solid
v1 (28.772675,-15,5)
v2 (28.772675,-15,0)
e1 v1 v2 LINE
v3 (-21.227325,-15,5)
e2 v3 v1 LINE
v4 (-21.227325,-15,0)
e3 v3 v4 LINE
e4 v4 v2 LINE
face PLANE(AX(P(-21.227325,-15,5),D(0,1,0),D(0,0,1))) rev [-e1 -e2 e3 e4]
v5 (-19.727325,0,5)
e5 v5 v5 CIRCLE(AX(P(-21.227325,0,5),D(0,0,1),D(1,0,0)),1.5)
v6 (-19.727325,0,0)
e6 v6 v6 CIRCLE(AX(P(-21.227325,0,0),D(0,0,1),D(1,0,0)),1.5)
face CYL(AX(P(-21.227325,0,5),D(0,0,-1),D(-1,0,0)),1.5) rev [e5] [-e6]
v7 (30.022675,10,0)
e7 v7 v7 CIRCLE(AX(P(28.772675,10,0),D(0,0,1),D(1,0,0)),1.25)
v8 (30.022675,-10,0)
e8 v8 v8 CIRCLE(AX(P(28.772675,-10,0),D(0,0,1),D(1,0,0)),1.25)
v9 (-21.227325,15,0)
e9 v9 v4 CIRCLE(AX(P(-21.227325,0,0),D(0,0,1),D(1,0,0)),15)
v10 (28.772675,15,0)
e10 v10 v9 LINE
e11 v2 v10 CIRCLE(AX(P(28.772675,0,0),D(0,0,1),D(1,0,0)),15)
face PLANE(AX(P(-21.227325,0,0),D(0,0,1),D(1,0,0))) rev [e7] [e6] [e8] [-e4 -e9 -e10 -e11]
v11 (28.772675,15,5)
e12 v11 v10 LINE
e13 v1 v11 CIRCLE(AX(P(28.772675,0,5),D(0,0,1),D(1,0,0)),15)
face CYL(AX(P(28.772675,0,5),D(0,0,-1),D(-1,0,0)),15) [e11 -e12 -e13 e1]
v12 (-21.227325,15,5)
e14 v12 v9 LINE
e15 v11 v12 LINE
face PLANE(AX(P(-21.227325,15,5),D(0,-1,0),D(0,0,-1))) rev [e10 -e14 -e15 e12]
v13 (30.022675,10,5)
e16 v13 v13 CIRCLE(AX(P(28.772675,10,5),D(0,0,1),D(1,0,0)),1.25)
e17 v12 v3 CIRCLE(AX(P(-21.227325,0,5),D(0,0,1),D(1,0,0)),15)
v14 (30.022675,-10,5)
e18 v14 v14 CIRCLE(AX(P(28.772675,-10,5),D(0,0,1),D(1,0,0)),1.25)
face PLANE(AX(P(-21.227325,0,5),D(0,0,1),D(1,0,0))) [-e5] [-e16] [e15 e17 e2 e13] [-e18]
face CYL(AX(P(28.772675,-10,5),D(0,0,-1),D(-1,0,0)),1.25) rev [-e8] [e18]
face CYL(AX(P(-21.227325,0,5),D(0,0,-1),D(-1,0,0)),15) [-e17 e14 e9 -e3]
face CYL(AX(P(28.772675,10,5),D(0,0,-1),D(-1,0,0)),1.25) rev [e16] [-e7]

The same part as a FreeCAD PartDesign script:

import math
import FreeCAD as App
import Part
import Sketcher
from FreeCAD import Vector

doc = App.newDocument("Part")
body = doc.addObject("PartDesign::Body", "Body")

# Sketch on XY plane
sketch1 = body.newObject("Sketcher::SketchObject", "Sketch")
sketch1.AttachmentSupport = (doc.getObject("XY_Plane"), [""])
sketch1.MapMode = "FlatFace"
sketch1.addGeometry([
    Part.LineSegment(Vector(28.8, 15, 0), Vector(-21.2, 15, 0)),  # 0
    Part.ArcOfCircle(Part.Circle(Vector(-21.2, 0, 0), Vector(0, 0, 1), 15), math.radians(90), math.radians(270)),  # 1
    Part.LineSegment(Vector(-21.2, -15, 0), Vector(28.8, -15, 0)),  # 2
    Part.ArcOfCircle(Part.Circle(Vector(28.8, 0, 0), Vector(0, 0, 1), 15), math.radians(-90), math.radians(90)),  # 3
    Part.Circle(Vector(28.8, -10, 0), Vector(0, 0, 1), 1.2),  # 4
    Part.Circle(Vector(28.8, 10, 0), Vector(0, 0, 1), 1.2),  # 5
    Part.Circle(Vector(-21.2, 0, 0), Vector(0, 0, 1), 1.5),  # 6
], False)
sketch1.addConstraint([
    Sketcher.Constraint("Tangent", 0, 2, 1, 1),
    Sketcher.Constraint("Tangent", 1, 2, 2, 1),
    Sketcher.Constraint("Tangent", 2, 2, 3, 1),
    Sketcher.Constraint("Tangent", 3, 2, 0, 1),
    Sketcher.Constraint("Horizontal", 0),
    Sketcher.Constraint("Horizontal", 2),
    Sketcher.Constraint("Coincident", 6, 3, 1, 3),
    Sketcher.Constraint("Equal", 4, 5),
    Sketcher.Constraint("Symmetric", 4, 3, 5, 3, -1),
    Sketcher.Constraint("PointOnObject", 1, 3, -1),
    Sketcher.Constraint("Vertical", 3, 3, 4, 3),
    Sketcher.Constraint("Diameter", 6, 3.0),
    Sketcher.Constraint("Radius", 1, 15.0),
    Sketcher.Constraint("Diameter", 4, 2.5),
    Sketcher.Constraint("DistanceX", 0, 2, 0, 1, 50.0),
    Sketcher.Constraint("DistanceY", 4, 3, -1, 1, 10.0),
    Sketcher.Constraint("DistanceX", 1, 3, -1, 1, 21.227325),
])
pad1 = body.newObject("PartDesign::Pad", "Pad")
pad1.Profile = sketch1
pad1.Length = 5

doc.recompute()
